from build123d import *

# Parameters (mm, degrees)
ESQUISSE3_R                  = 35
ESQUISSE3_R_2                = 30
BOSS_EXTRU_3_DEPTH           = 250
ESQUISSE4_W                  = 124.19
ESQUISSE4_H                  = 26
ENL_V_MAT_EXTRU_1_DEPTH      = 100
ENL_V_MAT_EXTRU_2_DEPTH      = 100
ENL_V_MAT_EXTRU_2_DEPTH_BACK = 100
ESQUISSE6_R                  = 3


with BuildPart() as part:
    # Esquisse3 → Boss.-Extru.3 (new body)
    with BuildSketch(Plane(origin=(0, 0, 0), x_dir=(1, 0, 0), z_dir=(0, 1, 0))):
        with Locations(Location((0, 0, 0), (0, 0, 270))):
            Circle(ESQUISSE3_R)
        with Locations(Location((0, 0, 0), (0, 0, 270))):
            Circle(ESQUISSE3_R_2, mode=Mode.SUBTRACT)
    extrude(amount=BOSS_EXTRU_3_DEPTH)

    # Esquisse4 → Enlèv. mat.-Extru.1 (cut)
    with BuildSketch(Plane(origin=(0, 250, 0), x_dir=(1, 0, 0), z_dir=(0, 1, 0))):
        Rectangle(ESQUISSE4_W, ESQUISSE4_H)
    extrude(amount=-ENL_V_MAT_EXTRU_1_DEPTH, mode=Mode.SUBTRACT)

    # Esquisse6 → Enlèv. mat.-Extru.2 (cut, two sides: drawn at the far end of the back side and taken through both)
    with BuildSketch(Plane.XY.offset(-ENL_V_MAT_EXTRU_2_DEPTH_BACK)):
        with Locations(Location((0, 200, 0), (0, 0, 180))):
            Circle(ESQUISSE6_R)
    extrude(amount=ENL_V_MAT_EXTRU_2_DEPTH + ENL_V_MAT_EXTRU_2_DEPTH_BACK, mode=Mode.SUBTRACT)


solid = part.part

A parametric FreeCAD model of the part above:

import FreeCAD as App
import Part
import Sketcher
from FreeCAD import Vector
Q = App.Units.Quantity


def add_polygon(sketch, points):
    """Adds a closed chain of lines whose ends are joined by coincident constraints."""
    first, n = sketch.GeometryCount, len(points)
    for a, b in zip(points, points[1:] + points[:1]):
        sketch.addGeometry(Part.LineSegment(App.Vector(*a, 0), App.Vector(*b, 0)), False)
    for i in range(n):
        sketch.addConstraint(Sketcher.Constraint("Coincident", first + i, 2, first + (i + 1) % n, 1))

doc = App.newDocument("Part")
body = doc.addObject("PartDesign::Body", "Body")

# Sketch on XZ plane
sketch1 = body.newObject("Sketcher::SketchObject", "Sketch")
sketch1.AttachmentSupport = (doc.getObject("XZ_Plane"), [""])
sketch1.MapMode = "FlatFace"
sketch1.addGeometry(Part.Circle(Vector(0, 0, 0), Vector(0, 0, 1), 35), False)
sketch1.addGeometry(Part.Circle(Vector(0, 0, 0), Vector(0, 0, 1), 30), False)
sketch1.addConstraint(Sketcher.Constraint("Coincident", 0, 3, -1, 1))
sketch1.addConstraint(Sketcher.Constraint("Coincident", 1, 3, -1, 1))
sketch1.addConstraint(Sketcher.Constraint("Diameter", 0, Q("70 mm")))
sketch1.addConstraint(Sketcher.Constraint("Diameter", 1, Q("60 mm")))
pad1 = body.newObject("PartDesign::Pad", "Pad")
pad1.Profile = sketch1
pad1.Length = 250
pad1.Reversed = True

# Sketch on XZ plane
sketch2 = body.newObject("Sketcher::SketchObject", "Sketch001")
sketch2.AttachmentSupport = (doc.getObject("XZ_Plane"), [""])
sketch2.MapMode = "FlatFace"
sketch2.AttachmentOffset = App.Placement(Vector(0, 0, -250), App.Rotation())
add_polygon(sketch2, [(-62, -13), (-62, 13), (62, 13), (62, -13)])  # lines 0-3
sketch2.addConstraint(Sketcher.Constraint("Vertical", 0))
sketch2.addConstraint(Sketcher.Constraint("Horizontal", 1))
sketch2.addConstraint(Sketcher.Constraint("Vertical", 2))
sketch2.addConstraint(Sketcher.Constraint("Horizontal", 3))
sketch2.addConstraint(Sketcher.Constraint("Symmetric", 0, 2, 2, 2, -1, 1))
sketch2.addConstraint(Sketcher.Constraint("DistanceY", 0, 1, 0, 2, Q("26 mm")))
sketch2.addConstraint(Sketcher.Constraint("DistanceX", 1, 1, 1, 2, Q("124.19 mm")))
pocket1 = body.newObject("PartDesign::Pocket", "Pocket")
pocket1.Profile = sketch2
pocket1.Length = 100
pocket1.Reversed = True

# Sketch on XY plane
sketch3 = body.newObject("Sketcher::SketchObject", "Sketch002")
sketch3.AttachmentSupport = (doc.getObject("XY_Plane"), [""])
sketch3.MapMode = "FlatFace"
sketch3.addGeometry(Part.Circle(Vector(0, 200, 0), Vector(0, 0, 1), 3), False)
sketch3.addConstraint(Sketcher.Constraint("PointOnObject", 0, 3, -2))
sketch3.addConstraint(Sketcher.Constraint("Diameter", 0, Q("6 mm")))
sketch3.addConstraint(Sketcher.Constraint("DistanceY", -1, 1, 0, 3, Q("200 mm")))
pocket2 = body.newObject("PartDesign::Pocket", "Pocket001")
pocket2.Profile = sketch3
pocket2.Type = "ThroughAll"
pocket2.Midplane = True

doc.recompute()
